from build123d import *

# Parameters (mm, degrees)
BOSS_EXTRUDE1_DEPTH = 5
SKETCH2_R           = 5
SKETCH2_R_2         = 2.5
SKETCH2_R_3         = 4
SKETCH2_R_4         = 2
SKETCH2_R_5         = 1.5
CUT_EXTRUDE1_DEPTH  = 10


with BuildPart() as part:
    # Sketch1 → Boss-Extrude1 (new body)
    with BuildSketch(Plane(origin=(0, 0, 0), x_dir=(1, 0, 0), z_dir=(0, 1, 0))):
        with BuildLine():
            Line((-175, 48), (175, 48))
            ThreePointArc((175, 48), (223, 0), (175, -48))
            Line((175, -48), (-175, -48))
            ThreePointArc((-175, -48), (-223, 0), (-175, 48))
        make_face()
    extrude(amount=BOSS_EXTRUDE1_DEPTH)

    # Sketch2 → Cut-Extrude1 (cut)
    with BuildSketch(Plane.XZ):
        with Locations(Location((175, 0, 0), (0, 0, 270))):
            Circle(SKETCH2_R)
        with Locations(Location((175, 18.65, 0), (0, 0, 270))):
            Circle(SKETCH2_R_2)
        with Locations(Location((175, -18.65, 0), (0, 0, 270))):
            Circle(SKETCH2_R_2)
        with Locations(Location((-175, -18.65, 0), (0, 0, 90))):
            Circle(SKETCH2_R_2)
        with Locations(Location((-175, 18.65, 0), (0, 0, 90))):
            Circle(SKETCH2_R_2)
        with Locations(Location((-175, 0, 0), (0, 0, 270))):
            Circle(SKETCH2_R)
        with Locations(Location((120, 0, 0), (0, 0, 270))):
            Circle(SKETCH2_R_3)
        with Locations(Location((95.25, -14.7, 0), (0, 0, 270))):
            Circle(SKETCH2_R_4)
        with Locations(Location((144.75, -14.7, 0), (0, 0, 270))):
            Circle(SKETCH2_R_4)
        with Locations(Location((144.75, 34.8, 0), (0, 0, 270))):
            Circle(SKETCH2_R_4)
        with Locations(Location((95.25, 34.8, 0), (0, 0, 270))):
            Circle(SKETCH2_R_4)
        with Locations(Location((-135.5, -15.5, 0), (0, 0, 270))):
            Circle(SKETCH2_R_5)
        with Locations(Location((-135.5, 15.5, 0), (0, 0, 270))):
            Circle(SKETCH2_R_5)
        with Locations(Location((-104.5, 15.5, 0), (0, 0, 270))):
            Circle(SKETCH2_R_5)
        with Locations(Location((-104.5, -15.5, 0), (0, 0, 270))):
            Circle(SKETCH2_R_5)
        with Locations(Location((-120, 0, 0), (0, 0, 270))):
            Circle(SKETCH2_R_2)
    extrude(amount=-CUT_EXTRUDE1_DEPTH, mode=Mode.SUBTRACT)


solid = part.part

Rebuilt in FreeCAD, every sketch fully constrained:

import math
import FreeCAD as App
import Part
import Sketcher
from FreeCAD import Vector
Q = App.Units.Quantity

doc = App.newDocument("Part")
body = doc.addObject("PartDesign::Body", "Body")

# Sketch on XZ plane
sketch1 = body.newObject("Sketcher::SketchObject", "Sketch")
sketch1.AttachmentSupport = (doc.getObject("XZ_Plane"), [""])
sketch1.MapMode = "FlatFace"
sketch1.addGeometry(Part.LineSegment(Vector(175, -48, 0), Vector(-175, -48, 0)), False)
sketch1.addGeometry(Part.ArcOfCircle(Part.Circle(Vector(-175, 0, 0), Vector(0, 0, 1), 48), math.radians(90), math.radians(270)), False)
sketch1.addGeometry(Part.LineSegment(Vector(-175, 48, 0), Vector(175, 48, 0)), False)
sketch1.addGeometry(Part.ArcOfCircle(Part.Circle(Vector(175, 0, 0), Vector(0, 0, 1), 48), math.radians(-90), math.radians(90)), False)
sketch1.addConstraint(Sketcher.Constraint("Tangent", 0, 2, 1, 2))
sketch1.addConstraint(Sketcher.Constraint("Tangent", 1, 1, 2, 1))
sketch1.addConstraint(Sketcher.Constraint("Tangent", 2, 2, 3, 2))
sketch1.addConstraint(Sketcher.Constraint("Tangent", 3, 1, 0, 1))
sketch1.addConstraint(Sketcher.Constraint("Horizontal", 0))
sketch1.addConstraint(Sketcher.Constraint("Horizontal", 2))
sketch1.addConstraint(Sketcher.Constraint("Symmetric", 1, 3, 3, 3, -1, 1))
sketch1.addConstraint(Sketcher.Constraint("Radius", 1, Q("48 mm")))
sketch1.addConstraint(Sketcher.Constraint("DistanceX", 0, 2, 0, 1, Q("350 mm")))
pad1 = body.newObject("PartDesign::Pad", "Pad")
pad1.Profile = sketch1
pad1.Length = 5
pad1.Reversed = True

# Sketch on XZ plane
sketch2 = body.newObject("Sketcher::SketchObject", "Sketch001")
sketch2.AttachmentSupport = (doc.getObject("XZ_Plane"), [""])
sketch2.MapMode = "FlatFace"
sketch2.addGeometry(Part.Circle(Vector(175, 0, 0), Vector(0, 0, 1), 5), False)
sketch2.addGeometry(Part.Circle(Vector(175, 18.6, 0), Vector(0, 0, 1), 2.5), False)
sketch2.addGeometry(Part.Circle(Vector(175, -18.6, 0), Vector(0, 0, 1), 2.5), False)
sketch2.addGeometry(Part.Circle(Vector(-175, -18.6, 0), Vector(0, 0, 1), 2.5), False)
sketch2.addGeometry(Part.Circle(Vector(-175, 18.6, 0), Vector(0, 0, 1), 2.5), False)
sketch2.addGeometry(Part.Circle(Vector(-175, 0, 0), Vector(0, 0, 1), 5), False)
sketch2.addGeometry(Part.Circle(Vector(120, 0, 0), Vector(0, 0, 1), 4), False)
sketch2.addGeometry(Part.Circle(Vector(95.2, -14.7, 0), Vector(0, 0, 1), 2), False)
sketch2.addGeometry(Part.Circle(Vector(144.8, -14.7, 0), Vector(0, 0, 1), 2), False)
sketch2.addGeometry(Part.Circle(Vector(144.8, 34.8, 0), Vector(0, 0, 1), 2), False)
sketch2.addGeometry(Part.Circle(Vector(95.2, 34.8, 0), Vector(0, 0, 1), 2), False)
sketch2.addGeometry(Part.Circle(Vector(-135.5, -15.5, 0), Vector(0, 0, 1), 1.5), False)
sketch2.addGeometry(Part.Circle(Vector(-135.5, 15.5, 0), Vector(0, 0, 1), 1.5), False)
sketch2.addGeometry(Part.Circle(Vector(-104.5, 15.5, 0), Vector(0, 0, 1), 1.5), False)
sketch2.addGeometry(Part.Circle(Vector(-104.5, -15.5, 0), Vector(0, 0, 1), 1.5), False)
sketch2.addGeometry(Part.Circle(Vector(-120, 0, 0), Vector(0, 0, 1), 2.5), False)
sketch2.addConstraint(Sketcher.Constraint("Equal", 1, 2))
sketch2.addConstraint(Sketcher.Constraint("Equal", 2, 3))
sketch2.addConstraint(Sketcher.Constraint("Equal", 3, 4))
sketch2.addConstraint(Sketcher.Constraint("Equal", 0, 5))
sketch2.addConstraint(Sketcher.Constraint("Equal", 7, 8))
sketch2.addConstraint(Sketcher.Constraint("Equal", 8, 9))
sketch2.addConstraint(Sketcher.Constraint("Equal", 9, 10))
sketch2.addConstraint(Sketcher.Constraint("Equal", 11, 12))
sketch2.addConstraint(Sketcher.Constraint("Equal", 12, 13))
sketch2.addConstraint(Sketcher.Constraint("Equal", 13, 14))
sketch2.addConstraint(Sketcher.Constraint("Equal", 4, 15))
sketch2.addConstraint(Sketcher.Constraint("Symmetric", 1, 3, 3, 3, -1, 1))
sketch2.addConstraint(Sketcher.Constraint("Symmetric", 2, 3, 4, 3, -1, 1))
sketch2.addConstraint(Sketcher.Constraint("Symmetric", 0, 3, 5, 3, -1, 1))
sketch2.addConstraint(Sketcher.Constraint("Symmetric", 6, 3, 15, 3, -1, 1))
sketch2.addConstraint(Sketcher.Constraint("Symmetric", 2, 3, 3, 3, -2))
sketch2.addConstraint(Sketcher.Constraint("Symmetric", 11, 3, 12, 3, -1))
sketch2.addConstraint(Sketcher.Constraint("Symmetric", 13, 3, 14, 3, -1))
sketch2.addConstraint(Sketcher.Constraint("PointOnObject", 0, 3, -1))
sketch2.addConstraint(Sketcher.Constraint("PointOnObject", 6, 3, -1))
sketch2.addConstraint(Sketcher.Constraint("Horizontal", 7, 3, 8, 3))
sketch2.addConstraint(Sketcher.Constraint("Horizontal", 9, 3, 10, 3))
sketch2.addConstraint(Sketcher.Constraint("Horizontal", 12, 3, 13, 3))
sketch2.addConstraint(Sketcher.Constraint("Vertical", 0, 3, 1, 3))
sketch2.addConstraint(Sketcher.Constraint("Vertical", 8, 3, 9, 3))
sketch2.addConstraint(Sketcher.Constraint("Vertical", 7, 3, 10, 3))
sketch2.addConstraint(Sketcher.Constraint("Diameter", 0, Q("10 mm")))
sketch2.addConstraint(Sketcher.Constraint("Diameter", 1, Q("5 mm")))
sketch2.addConstraint(Sketcher.Constraint("Diameter", 6, Q("8 mm")))
sketch2.addConstraint(Sketcher.Constraint("Diameter", 7, Q("4 mm")))
sketch2.addConstraint(Sketcher.Constraint("Diameter", 11, Q("3 mm")))
sketch2.addConstraint(Sketcher.Constraint("DistanceX", -1, 1, 0, 3, Q("175 mm")))
sketch2.addConstraint(Sketcher.Constraint("DistanceX", -1, 1, 6, 3, Q("120 mm")))
sketch2.addConstraint(Sketcher.Constraint("DistanceY", 11, 3, 12, 3, Q("31 mm")))
sketch2.addConstraint(Sketcher.Constraint("DistanceX", 12, 3, 13, 3, Q("31 mm")))
sketch2.addConstraint(Sketcher.Constraint("DistanceY", 7, 3, -1, 1, Q("14.7 mm")))
sketch2.addConstraint(Sketcher.Constraint("DistanceY", -1, 1, 9, 3, Q("34.8 mm")))
sketch2.addConstraint(Sketcher.Constraint("DistanceX", 11, 3, -1, 1, Q("135.5 mm")))
sketch2.addConstraint(Sketcher.Constraint("DistanceY", 2, 3, 1, 3, Q("37.3 mm")))
sketch2.addConstraint(Sketcher.Constraint("DistanceX", 7, 3, 8, 3, Q("49.5 mm")))
sketch2.addConstraint(Sketcher.Constraint("DistanceX", -1, 1, 7, 3, Q("95.25 mm")))
pocket1 = body.newObject("PartDesign::Pocket", "Pocket")
pocket1.Profile = sketch2
pocket1.Length = 10

doc.recompute()
